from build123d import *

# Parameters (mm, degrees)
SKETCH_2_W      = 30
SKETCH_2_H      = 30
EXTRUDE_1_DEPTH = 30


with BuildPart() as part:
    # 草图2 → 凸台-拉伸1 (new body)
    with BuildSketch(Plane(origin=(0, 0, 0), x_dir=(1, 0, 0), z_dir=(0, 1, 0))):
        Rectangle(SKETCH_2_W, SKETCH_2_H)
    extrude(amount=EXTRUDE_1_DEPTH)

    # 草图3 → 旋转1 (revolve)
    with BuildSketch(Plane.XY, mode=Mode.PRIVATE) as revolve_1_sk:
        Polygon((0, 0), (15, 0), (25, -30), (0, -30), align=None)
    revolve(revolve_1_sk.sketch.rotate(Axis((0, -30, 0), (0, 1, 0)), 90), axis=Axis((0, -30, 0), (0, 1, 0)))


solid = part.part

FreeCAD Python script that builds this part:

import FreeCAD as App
import Part
import Sketcher
from FreeCAD import Vector
Q = App.Units.Quantity


def add_polygon(sketch, points):
    """Adds a closed chain of lines whose ends are joined by coincident constraints."""
    first, n = sketch.GeometryCount, len(points)
    for a, b in zip(points, points[1:] + points[:1]):
        sketch.addGeometry(Part.LineSegment(App.Vector(*a, 0), App.Vector(*b, 0)), False)
    for i in range(n):
        sketch.addConstraint(Sketcher.Constraint("Coincident", first + i, 2, first + (i + 1) % n, 1))

doc = App.newDocument("Part")
body = doc.addObject("PartDesign::Body", "Body")

sketch1 = body.newObject("Sketcher::SketchObject", "Sketch")
sketch1.AttachmentSupport = (doc.getObject("XZ_Plane"), [""])
sketch1.MapMode = "FlatFace"
add_polygon(sketch1, [(-15, -15), (-15, 15), (15, 15), (15, -15)])
sketch1.addConstraint([
    Sketcher.Constraint("Vertical", 0),
    Sketcher.Constraint("Horizontal", 1),
    Sketcher.Constraint("Vertical", 2),
    Sketcher.Constraint("Horizontal", 3),
    Sketcher.Constraint("Symmetric", 0, 2, 2, 2, -1, 1),
    Sketcher.Constraint("Equal", 3, 0),
    Sketcher.Constraint("DistanceX", 1, 1, 1, 2, Q("30 mm")),
])
pad1 = body.newObject("PartDesign::Pad", "Pad")
pad1.Profile = sketch1
pad1.Length = 30
pad1.Reversed = True

sketch2 = body.newObject("Sketcher::SketchObject", "Sketch001")
sketch2.AttachmentSupport = (doc.getObject("XY_Plane"), [""])
sketch2.MapMode = "FlatFace"
add_polygon(sketch2, [(15, 0), (0, 0), (0, -30), (25, -30)])
sketch2.addConstraint([
    Sketcher.Constraint("Horizontal", 0),
    Sketcher.Constraint("Vertical", 1),
    Sketcher.Constraint("Horizontal", 2),
    Sketcher.Constraint("Coincident", 0, 2, -1, 1),
    Sketcher.Constraint("DistanceX", 0, 2, 0, 1, Q("15 mm")),
    Sketcher.Constraint("DistanceX", 2, 1, 2, 2, Q("25 mm")),
    Sketcher.Constraint("DistanceY", 1, 2, 1, 1, Q("30 mm")),
])
revolution = body.newObject("PartDesign::Revolution", "Revolution")
revolution.Profile = sketch2
revolution.ReferenceAxis = (sketch2, ["V_Axis"])
revolution.Angle = 360

doc.recompute()
